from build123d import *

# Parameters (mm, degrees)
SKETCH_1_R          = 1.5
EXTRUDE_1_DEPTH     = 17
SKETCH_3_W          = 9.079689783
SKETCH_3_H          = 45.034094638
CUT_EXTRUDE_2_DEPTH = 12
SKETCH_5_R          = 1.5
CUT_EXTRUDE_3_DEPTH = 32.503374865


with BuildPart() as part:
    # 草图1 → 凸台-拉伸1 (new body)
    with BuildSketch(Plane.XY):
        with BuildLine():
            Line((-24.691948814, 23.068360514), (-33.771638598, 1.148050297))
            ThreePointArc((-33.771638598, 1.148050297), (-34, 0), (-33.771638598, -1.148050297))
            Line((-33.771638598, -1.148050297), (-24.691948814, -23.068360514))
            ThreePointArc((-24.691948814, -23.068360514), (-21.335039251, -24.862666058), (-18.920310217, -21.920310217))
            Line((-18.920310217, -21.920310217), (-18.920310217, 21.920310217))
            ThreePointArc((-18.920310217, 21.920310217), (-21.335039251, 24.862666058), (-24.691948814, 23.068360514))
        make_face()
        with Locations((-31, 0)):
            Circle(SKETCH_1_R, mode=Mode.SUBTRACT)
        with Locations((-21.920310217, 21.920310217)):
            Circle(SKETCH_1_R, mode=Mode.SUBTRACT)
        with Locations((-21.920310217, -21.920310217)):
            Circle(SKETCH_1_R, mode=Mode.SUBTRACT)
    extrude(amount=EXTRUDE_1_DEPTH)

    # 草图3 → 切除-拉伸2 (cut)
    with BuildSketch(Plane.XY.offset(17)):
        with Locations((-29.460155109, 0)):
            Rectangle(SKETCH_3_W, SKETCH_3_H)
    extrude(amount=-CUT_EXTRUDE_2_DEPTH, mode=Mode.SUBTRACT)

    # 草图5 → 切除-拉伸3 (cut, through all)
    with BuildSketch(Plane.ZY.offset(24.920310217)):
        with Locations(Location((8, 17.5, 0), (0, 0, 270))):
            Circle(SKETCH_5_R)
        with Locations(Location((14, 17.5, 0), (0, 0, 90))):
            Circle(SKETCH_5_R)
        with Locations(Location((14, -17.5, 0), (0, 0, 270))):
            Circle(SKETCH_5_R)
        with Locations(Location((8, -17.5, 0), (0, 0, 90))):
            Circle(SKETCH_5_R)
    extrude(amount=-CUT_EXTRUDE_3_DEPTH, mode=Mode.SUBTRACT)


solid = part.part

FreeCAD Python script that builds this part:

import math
import FreeCAD as App
import Part
import Sketcher

V = App.Vector
Q = App.Units.Quantity


def add_polygon(sketch, points):
    """Adds a closed chain of lines whose ends are joined by coincident constraints."""
    first, n = sketch.GeometryCount, len(points)
    for a, b in zip(points, points[1:] + points[:1]):
        sketch.addGeometry(Part.LineSegment(App.Vector(*a, 0), App.Vector(*b, 0)), False)
    for i in range(n):
        sketch.addConstraint(Sketcher.Constraint("Coincident", first + i, 2, first + (i + 1) % n, 1))

doc = App.newDocument("Part")
body = doc.addObject("PartDesign::Body", "Body")

sketch1 = doc.addObject("Sketcher::SketchObject", "Sketch")
body.addObject(sketch1)
sketch1.AttachmentSupport = (doc.XY_Plane, [""])
sketch1.MapMode = "FlatFace"
sketch1.addGeometry(Part.LineSegment(V(-24.691949, 23.068361, 0), V(-33.771639, 1.14805, 0)), False)
sketch1.addGeometry(Part.ArcOfCircle(Part.Circle(V(-31, 0, 0), V(0, 0, 1), 3), math.radians(157.5), math.radians(202.5)), False)
sketch1.addGeometry(Part.LineSegment(V(-33.771639, -1.14805, 0), V(-24.691949, -23.068361, 0)), False)
sketch1.addGeometry(Part.ArcOfCircle(Part.Circle(V(-21.92031, -21.92031, 0), V(0, 0, 1), 3), math.radians(-157.5), math.radians(0)), False)
sketch1.addGeometry(Part.LineSegment(V(-18.92031, -21.92031, 0), V(-18.92031, 21.92031, 0)), False)
sketch1.addGeometry(Part.ArcOfCircle(Part.Circle(V(-21.92031, 21.92031, 0), V(0, 0, 1), 3), math.radians(0), math.radians(157.5)), False)
sketch1.addGeometry(Part.Circle(V(-21.92031, -21.92031, 0), V(0, 0, 1), 1.5), False)
sketch1.addGeometry(Part.Circle(V(-31, 0, 0), V(0, 0, 1), 1.5), False)
sketch1.addGeometry(Part.Circle(V(-21.92031, 21.92031, 0), V(0, 0, 1), 1.5), False)
sketch1.addConstraint(Sketcher.Constraint("Tangent", 0, 2, 1, 1))
sketch1.addConstraint(Sketcher.Constraint("Tangent", 1, 2, 2, 1))
sketch1.addConstraint(Sketcher.Constraint("Tangent", 2, 2, 3, 1))
sketch1.addConstraint(Sketcher.Constraint("Tangent", 3, 2, 4, 1))
sketch1.addConstraint(Sketcher.Constraint("Tangent", 4, 2, 5, 1))
sketch1.addConstraint(Sketcher.Constraint("Tangent", 5, 2, 0, 1))
sketch1.addConstraint(Sketcher.Constraint("Vertical", 4))
sketch1.addConstraint(Sketcher.Constraint("Coincident", 6, 3, 3, 3))
sketch1.addConstraint(Sketcher.Constraint("Coincident", 7, 3, 1, 3))
sketch1.addConstraint(Sketcher.Constraint("Coincident", 8, 3, 5, 3))
sketch1.addConstraint(Sketcher.Constraint("Equal", 1, 3))
sketch1.addConstraint(Sketcher.Constraint("Equal", 3, 5))
sketch1.addConstraint(Sketcher.Constraint("Equal", 6, 7))
sketch1.addConstraint(Sketcher.Constraint("Equal", 7, 8))
sketch1.addConstraint(Sketcher.Constraint("Symmetric", 0, 2, 1, 2, -1))
sketch1.addConstraint(Sketcher.Constraint("Diameter", 6, 3.0))
sketch1.addConstraint(Sketcher.Constraint("Radius", 1, 3.0))
sketch1.addConstraint(Sketcher.Constraint("DistanceX", 1, 3, -1, 1, 31.0))
sketch1.addConstraint(Sketcher.Constraint("Angle", 0, Q("-112.5 deg")))
sketch1.addConstraint(Sketcher.Constraint("DistanceY", 4, 1, 4, 2, 43.84062))
pad1 = doc.addObject("PartDesign::Pad", "Pad")
body.addObject(pad1)
pad1.Profile = sketch1
pad1.Length = 17

sketch2 = doc.addObject("Sketcher::SketchObject", "Sketch001")
body.addObject(sketch2)
sketch2.AttachmentSupport = (doc.XY_Plane, [""])
sketch2.MapMode = "FlatFace"
sketch2.AttachmentOffset = App.Placement(V(0, 0, 17), App.Rotation())
add_polygon(sketch2, [(-34, 22.517047), (-34, -22.517047), (-24.92031, -22.517047), (-24.92031, 22.517047)])
sketch2.addConstraint(Sketcher.Constraint("Vertical", 0))
sketch2.addConstraint(Sketcher.Constraint("Horizontal", 1))
sketch2.addConstraint(Sketcher.Constraint("Vertical", 2))
sketch2.addConstraint(Sketcher.Constraint("Horizontal", 3))
sketch2.addConstraint(Sketcher.Constraint("DistanceX", 0, 2, -1, 1, 34.0))
sketch2.addConstraint(Sketcher.Constraint("DistanceX", 1, 1, 1, 2, 9.07969))
sketch2.addConstraint(Sketcher.Constraint("DistanceY", 0, 2, 0, 1, 45.034095))
sketch2.addConstraint(Sketcher.Constraint("DistanceY", 0, 2, -1, 1, 22.517047))
pocket1 = doc.addObject("PartDesign::Pocket", "Pocket")
body.addObject(pocket1)
pocket1.Profile = sketch2
pocket1.Length = 12

sketch3 = doc.addObject("Sketcher::SketchObject", "Sketch002")
body.addObject(sketch3)
sketch3.AttachmentSupport = (doc.YZ_Plane, [""])
sketch3.MapMode = "FlatFace"
sketch3.AttachmentOffset = App.Placement(V(0, 0, -24.92031), App.Rotation())
sketch3.addGeometry(Part.Circle(V(17.5, 8, 0), V(0, 0, 1), 1.5), False)
sketch3.addGeometry(Part.Circle(V(17.5, 14, 0), V(0, 0, 1), 1.5), False)
sketch3.addGeometry(Part.Circle(V(-17.5, 14, 0), V(0, 0, 1), 1.5), False)
sketch3.addGeometry(Part.Circle(V(-17.5, 8, 0), V(0, 0, 1), 1.5), False)
sketch3.addConstraint(Sketcher.Constraint("Equal", 0, 1))
sketch3.addConstraint(Sketcher.Constraint("Equal", 1, 2))
sketch3.addConstraint(Sketcher.Constraint("Equal", 2, 3))
sketch3.addConstraint(Sketcher.Constraint("Symmetric", 1, 3, 2, 3, -2))
sketch3.addConstraint(Sketcher.Constraint("Symmetric", 0, 3, 3, 3, -2))
sketch3.addConstraint(Sketcher.Constraint("Vertical", 0, 3, 1, 3))
sketch3.addConstraint(Sketcher.Constraint("Diameter", 0, 3.0))
sketch3.addConstraint(Sketcher.Constraint("DistanceY", -1, 1, 0, 3, 8.0))
sketch3.addConstraint(Sketcher.Constraint("DistanceY", -1, 1, 1, 3, 14.0))
sketch3.addConstraint(Sketcher.Constraint("DistanceX", 2, 3, 1, 3, 35.0))
pocket2 = doc.addObject("PartDesign::Pocket", "Pocket001")
body.addObject(pocket2)
pocket2.Profile = sketch3
pocket2.Type = "ThroughAll"
pocket2.Reversed = True

doc.recompute()
